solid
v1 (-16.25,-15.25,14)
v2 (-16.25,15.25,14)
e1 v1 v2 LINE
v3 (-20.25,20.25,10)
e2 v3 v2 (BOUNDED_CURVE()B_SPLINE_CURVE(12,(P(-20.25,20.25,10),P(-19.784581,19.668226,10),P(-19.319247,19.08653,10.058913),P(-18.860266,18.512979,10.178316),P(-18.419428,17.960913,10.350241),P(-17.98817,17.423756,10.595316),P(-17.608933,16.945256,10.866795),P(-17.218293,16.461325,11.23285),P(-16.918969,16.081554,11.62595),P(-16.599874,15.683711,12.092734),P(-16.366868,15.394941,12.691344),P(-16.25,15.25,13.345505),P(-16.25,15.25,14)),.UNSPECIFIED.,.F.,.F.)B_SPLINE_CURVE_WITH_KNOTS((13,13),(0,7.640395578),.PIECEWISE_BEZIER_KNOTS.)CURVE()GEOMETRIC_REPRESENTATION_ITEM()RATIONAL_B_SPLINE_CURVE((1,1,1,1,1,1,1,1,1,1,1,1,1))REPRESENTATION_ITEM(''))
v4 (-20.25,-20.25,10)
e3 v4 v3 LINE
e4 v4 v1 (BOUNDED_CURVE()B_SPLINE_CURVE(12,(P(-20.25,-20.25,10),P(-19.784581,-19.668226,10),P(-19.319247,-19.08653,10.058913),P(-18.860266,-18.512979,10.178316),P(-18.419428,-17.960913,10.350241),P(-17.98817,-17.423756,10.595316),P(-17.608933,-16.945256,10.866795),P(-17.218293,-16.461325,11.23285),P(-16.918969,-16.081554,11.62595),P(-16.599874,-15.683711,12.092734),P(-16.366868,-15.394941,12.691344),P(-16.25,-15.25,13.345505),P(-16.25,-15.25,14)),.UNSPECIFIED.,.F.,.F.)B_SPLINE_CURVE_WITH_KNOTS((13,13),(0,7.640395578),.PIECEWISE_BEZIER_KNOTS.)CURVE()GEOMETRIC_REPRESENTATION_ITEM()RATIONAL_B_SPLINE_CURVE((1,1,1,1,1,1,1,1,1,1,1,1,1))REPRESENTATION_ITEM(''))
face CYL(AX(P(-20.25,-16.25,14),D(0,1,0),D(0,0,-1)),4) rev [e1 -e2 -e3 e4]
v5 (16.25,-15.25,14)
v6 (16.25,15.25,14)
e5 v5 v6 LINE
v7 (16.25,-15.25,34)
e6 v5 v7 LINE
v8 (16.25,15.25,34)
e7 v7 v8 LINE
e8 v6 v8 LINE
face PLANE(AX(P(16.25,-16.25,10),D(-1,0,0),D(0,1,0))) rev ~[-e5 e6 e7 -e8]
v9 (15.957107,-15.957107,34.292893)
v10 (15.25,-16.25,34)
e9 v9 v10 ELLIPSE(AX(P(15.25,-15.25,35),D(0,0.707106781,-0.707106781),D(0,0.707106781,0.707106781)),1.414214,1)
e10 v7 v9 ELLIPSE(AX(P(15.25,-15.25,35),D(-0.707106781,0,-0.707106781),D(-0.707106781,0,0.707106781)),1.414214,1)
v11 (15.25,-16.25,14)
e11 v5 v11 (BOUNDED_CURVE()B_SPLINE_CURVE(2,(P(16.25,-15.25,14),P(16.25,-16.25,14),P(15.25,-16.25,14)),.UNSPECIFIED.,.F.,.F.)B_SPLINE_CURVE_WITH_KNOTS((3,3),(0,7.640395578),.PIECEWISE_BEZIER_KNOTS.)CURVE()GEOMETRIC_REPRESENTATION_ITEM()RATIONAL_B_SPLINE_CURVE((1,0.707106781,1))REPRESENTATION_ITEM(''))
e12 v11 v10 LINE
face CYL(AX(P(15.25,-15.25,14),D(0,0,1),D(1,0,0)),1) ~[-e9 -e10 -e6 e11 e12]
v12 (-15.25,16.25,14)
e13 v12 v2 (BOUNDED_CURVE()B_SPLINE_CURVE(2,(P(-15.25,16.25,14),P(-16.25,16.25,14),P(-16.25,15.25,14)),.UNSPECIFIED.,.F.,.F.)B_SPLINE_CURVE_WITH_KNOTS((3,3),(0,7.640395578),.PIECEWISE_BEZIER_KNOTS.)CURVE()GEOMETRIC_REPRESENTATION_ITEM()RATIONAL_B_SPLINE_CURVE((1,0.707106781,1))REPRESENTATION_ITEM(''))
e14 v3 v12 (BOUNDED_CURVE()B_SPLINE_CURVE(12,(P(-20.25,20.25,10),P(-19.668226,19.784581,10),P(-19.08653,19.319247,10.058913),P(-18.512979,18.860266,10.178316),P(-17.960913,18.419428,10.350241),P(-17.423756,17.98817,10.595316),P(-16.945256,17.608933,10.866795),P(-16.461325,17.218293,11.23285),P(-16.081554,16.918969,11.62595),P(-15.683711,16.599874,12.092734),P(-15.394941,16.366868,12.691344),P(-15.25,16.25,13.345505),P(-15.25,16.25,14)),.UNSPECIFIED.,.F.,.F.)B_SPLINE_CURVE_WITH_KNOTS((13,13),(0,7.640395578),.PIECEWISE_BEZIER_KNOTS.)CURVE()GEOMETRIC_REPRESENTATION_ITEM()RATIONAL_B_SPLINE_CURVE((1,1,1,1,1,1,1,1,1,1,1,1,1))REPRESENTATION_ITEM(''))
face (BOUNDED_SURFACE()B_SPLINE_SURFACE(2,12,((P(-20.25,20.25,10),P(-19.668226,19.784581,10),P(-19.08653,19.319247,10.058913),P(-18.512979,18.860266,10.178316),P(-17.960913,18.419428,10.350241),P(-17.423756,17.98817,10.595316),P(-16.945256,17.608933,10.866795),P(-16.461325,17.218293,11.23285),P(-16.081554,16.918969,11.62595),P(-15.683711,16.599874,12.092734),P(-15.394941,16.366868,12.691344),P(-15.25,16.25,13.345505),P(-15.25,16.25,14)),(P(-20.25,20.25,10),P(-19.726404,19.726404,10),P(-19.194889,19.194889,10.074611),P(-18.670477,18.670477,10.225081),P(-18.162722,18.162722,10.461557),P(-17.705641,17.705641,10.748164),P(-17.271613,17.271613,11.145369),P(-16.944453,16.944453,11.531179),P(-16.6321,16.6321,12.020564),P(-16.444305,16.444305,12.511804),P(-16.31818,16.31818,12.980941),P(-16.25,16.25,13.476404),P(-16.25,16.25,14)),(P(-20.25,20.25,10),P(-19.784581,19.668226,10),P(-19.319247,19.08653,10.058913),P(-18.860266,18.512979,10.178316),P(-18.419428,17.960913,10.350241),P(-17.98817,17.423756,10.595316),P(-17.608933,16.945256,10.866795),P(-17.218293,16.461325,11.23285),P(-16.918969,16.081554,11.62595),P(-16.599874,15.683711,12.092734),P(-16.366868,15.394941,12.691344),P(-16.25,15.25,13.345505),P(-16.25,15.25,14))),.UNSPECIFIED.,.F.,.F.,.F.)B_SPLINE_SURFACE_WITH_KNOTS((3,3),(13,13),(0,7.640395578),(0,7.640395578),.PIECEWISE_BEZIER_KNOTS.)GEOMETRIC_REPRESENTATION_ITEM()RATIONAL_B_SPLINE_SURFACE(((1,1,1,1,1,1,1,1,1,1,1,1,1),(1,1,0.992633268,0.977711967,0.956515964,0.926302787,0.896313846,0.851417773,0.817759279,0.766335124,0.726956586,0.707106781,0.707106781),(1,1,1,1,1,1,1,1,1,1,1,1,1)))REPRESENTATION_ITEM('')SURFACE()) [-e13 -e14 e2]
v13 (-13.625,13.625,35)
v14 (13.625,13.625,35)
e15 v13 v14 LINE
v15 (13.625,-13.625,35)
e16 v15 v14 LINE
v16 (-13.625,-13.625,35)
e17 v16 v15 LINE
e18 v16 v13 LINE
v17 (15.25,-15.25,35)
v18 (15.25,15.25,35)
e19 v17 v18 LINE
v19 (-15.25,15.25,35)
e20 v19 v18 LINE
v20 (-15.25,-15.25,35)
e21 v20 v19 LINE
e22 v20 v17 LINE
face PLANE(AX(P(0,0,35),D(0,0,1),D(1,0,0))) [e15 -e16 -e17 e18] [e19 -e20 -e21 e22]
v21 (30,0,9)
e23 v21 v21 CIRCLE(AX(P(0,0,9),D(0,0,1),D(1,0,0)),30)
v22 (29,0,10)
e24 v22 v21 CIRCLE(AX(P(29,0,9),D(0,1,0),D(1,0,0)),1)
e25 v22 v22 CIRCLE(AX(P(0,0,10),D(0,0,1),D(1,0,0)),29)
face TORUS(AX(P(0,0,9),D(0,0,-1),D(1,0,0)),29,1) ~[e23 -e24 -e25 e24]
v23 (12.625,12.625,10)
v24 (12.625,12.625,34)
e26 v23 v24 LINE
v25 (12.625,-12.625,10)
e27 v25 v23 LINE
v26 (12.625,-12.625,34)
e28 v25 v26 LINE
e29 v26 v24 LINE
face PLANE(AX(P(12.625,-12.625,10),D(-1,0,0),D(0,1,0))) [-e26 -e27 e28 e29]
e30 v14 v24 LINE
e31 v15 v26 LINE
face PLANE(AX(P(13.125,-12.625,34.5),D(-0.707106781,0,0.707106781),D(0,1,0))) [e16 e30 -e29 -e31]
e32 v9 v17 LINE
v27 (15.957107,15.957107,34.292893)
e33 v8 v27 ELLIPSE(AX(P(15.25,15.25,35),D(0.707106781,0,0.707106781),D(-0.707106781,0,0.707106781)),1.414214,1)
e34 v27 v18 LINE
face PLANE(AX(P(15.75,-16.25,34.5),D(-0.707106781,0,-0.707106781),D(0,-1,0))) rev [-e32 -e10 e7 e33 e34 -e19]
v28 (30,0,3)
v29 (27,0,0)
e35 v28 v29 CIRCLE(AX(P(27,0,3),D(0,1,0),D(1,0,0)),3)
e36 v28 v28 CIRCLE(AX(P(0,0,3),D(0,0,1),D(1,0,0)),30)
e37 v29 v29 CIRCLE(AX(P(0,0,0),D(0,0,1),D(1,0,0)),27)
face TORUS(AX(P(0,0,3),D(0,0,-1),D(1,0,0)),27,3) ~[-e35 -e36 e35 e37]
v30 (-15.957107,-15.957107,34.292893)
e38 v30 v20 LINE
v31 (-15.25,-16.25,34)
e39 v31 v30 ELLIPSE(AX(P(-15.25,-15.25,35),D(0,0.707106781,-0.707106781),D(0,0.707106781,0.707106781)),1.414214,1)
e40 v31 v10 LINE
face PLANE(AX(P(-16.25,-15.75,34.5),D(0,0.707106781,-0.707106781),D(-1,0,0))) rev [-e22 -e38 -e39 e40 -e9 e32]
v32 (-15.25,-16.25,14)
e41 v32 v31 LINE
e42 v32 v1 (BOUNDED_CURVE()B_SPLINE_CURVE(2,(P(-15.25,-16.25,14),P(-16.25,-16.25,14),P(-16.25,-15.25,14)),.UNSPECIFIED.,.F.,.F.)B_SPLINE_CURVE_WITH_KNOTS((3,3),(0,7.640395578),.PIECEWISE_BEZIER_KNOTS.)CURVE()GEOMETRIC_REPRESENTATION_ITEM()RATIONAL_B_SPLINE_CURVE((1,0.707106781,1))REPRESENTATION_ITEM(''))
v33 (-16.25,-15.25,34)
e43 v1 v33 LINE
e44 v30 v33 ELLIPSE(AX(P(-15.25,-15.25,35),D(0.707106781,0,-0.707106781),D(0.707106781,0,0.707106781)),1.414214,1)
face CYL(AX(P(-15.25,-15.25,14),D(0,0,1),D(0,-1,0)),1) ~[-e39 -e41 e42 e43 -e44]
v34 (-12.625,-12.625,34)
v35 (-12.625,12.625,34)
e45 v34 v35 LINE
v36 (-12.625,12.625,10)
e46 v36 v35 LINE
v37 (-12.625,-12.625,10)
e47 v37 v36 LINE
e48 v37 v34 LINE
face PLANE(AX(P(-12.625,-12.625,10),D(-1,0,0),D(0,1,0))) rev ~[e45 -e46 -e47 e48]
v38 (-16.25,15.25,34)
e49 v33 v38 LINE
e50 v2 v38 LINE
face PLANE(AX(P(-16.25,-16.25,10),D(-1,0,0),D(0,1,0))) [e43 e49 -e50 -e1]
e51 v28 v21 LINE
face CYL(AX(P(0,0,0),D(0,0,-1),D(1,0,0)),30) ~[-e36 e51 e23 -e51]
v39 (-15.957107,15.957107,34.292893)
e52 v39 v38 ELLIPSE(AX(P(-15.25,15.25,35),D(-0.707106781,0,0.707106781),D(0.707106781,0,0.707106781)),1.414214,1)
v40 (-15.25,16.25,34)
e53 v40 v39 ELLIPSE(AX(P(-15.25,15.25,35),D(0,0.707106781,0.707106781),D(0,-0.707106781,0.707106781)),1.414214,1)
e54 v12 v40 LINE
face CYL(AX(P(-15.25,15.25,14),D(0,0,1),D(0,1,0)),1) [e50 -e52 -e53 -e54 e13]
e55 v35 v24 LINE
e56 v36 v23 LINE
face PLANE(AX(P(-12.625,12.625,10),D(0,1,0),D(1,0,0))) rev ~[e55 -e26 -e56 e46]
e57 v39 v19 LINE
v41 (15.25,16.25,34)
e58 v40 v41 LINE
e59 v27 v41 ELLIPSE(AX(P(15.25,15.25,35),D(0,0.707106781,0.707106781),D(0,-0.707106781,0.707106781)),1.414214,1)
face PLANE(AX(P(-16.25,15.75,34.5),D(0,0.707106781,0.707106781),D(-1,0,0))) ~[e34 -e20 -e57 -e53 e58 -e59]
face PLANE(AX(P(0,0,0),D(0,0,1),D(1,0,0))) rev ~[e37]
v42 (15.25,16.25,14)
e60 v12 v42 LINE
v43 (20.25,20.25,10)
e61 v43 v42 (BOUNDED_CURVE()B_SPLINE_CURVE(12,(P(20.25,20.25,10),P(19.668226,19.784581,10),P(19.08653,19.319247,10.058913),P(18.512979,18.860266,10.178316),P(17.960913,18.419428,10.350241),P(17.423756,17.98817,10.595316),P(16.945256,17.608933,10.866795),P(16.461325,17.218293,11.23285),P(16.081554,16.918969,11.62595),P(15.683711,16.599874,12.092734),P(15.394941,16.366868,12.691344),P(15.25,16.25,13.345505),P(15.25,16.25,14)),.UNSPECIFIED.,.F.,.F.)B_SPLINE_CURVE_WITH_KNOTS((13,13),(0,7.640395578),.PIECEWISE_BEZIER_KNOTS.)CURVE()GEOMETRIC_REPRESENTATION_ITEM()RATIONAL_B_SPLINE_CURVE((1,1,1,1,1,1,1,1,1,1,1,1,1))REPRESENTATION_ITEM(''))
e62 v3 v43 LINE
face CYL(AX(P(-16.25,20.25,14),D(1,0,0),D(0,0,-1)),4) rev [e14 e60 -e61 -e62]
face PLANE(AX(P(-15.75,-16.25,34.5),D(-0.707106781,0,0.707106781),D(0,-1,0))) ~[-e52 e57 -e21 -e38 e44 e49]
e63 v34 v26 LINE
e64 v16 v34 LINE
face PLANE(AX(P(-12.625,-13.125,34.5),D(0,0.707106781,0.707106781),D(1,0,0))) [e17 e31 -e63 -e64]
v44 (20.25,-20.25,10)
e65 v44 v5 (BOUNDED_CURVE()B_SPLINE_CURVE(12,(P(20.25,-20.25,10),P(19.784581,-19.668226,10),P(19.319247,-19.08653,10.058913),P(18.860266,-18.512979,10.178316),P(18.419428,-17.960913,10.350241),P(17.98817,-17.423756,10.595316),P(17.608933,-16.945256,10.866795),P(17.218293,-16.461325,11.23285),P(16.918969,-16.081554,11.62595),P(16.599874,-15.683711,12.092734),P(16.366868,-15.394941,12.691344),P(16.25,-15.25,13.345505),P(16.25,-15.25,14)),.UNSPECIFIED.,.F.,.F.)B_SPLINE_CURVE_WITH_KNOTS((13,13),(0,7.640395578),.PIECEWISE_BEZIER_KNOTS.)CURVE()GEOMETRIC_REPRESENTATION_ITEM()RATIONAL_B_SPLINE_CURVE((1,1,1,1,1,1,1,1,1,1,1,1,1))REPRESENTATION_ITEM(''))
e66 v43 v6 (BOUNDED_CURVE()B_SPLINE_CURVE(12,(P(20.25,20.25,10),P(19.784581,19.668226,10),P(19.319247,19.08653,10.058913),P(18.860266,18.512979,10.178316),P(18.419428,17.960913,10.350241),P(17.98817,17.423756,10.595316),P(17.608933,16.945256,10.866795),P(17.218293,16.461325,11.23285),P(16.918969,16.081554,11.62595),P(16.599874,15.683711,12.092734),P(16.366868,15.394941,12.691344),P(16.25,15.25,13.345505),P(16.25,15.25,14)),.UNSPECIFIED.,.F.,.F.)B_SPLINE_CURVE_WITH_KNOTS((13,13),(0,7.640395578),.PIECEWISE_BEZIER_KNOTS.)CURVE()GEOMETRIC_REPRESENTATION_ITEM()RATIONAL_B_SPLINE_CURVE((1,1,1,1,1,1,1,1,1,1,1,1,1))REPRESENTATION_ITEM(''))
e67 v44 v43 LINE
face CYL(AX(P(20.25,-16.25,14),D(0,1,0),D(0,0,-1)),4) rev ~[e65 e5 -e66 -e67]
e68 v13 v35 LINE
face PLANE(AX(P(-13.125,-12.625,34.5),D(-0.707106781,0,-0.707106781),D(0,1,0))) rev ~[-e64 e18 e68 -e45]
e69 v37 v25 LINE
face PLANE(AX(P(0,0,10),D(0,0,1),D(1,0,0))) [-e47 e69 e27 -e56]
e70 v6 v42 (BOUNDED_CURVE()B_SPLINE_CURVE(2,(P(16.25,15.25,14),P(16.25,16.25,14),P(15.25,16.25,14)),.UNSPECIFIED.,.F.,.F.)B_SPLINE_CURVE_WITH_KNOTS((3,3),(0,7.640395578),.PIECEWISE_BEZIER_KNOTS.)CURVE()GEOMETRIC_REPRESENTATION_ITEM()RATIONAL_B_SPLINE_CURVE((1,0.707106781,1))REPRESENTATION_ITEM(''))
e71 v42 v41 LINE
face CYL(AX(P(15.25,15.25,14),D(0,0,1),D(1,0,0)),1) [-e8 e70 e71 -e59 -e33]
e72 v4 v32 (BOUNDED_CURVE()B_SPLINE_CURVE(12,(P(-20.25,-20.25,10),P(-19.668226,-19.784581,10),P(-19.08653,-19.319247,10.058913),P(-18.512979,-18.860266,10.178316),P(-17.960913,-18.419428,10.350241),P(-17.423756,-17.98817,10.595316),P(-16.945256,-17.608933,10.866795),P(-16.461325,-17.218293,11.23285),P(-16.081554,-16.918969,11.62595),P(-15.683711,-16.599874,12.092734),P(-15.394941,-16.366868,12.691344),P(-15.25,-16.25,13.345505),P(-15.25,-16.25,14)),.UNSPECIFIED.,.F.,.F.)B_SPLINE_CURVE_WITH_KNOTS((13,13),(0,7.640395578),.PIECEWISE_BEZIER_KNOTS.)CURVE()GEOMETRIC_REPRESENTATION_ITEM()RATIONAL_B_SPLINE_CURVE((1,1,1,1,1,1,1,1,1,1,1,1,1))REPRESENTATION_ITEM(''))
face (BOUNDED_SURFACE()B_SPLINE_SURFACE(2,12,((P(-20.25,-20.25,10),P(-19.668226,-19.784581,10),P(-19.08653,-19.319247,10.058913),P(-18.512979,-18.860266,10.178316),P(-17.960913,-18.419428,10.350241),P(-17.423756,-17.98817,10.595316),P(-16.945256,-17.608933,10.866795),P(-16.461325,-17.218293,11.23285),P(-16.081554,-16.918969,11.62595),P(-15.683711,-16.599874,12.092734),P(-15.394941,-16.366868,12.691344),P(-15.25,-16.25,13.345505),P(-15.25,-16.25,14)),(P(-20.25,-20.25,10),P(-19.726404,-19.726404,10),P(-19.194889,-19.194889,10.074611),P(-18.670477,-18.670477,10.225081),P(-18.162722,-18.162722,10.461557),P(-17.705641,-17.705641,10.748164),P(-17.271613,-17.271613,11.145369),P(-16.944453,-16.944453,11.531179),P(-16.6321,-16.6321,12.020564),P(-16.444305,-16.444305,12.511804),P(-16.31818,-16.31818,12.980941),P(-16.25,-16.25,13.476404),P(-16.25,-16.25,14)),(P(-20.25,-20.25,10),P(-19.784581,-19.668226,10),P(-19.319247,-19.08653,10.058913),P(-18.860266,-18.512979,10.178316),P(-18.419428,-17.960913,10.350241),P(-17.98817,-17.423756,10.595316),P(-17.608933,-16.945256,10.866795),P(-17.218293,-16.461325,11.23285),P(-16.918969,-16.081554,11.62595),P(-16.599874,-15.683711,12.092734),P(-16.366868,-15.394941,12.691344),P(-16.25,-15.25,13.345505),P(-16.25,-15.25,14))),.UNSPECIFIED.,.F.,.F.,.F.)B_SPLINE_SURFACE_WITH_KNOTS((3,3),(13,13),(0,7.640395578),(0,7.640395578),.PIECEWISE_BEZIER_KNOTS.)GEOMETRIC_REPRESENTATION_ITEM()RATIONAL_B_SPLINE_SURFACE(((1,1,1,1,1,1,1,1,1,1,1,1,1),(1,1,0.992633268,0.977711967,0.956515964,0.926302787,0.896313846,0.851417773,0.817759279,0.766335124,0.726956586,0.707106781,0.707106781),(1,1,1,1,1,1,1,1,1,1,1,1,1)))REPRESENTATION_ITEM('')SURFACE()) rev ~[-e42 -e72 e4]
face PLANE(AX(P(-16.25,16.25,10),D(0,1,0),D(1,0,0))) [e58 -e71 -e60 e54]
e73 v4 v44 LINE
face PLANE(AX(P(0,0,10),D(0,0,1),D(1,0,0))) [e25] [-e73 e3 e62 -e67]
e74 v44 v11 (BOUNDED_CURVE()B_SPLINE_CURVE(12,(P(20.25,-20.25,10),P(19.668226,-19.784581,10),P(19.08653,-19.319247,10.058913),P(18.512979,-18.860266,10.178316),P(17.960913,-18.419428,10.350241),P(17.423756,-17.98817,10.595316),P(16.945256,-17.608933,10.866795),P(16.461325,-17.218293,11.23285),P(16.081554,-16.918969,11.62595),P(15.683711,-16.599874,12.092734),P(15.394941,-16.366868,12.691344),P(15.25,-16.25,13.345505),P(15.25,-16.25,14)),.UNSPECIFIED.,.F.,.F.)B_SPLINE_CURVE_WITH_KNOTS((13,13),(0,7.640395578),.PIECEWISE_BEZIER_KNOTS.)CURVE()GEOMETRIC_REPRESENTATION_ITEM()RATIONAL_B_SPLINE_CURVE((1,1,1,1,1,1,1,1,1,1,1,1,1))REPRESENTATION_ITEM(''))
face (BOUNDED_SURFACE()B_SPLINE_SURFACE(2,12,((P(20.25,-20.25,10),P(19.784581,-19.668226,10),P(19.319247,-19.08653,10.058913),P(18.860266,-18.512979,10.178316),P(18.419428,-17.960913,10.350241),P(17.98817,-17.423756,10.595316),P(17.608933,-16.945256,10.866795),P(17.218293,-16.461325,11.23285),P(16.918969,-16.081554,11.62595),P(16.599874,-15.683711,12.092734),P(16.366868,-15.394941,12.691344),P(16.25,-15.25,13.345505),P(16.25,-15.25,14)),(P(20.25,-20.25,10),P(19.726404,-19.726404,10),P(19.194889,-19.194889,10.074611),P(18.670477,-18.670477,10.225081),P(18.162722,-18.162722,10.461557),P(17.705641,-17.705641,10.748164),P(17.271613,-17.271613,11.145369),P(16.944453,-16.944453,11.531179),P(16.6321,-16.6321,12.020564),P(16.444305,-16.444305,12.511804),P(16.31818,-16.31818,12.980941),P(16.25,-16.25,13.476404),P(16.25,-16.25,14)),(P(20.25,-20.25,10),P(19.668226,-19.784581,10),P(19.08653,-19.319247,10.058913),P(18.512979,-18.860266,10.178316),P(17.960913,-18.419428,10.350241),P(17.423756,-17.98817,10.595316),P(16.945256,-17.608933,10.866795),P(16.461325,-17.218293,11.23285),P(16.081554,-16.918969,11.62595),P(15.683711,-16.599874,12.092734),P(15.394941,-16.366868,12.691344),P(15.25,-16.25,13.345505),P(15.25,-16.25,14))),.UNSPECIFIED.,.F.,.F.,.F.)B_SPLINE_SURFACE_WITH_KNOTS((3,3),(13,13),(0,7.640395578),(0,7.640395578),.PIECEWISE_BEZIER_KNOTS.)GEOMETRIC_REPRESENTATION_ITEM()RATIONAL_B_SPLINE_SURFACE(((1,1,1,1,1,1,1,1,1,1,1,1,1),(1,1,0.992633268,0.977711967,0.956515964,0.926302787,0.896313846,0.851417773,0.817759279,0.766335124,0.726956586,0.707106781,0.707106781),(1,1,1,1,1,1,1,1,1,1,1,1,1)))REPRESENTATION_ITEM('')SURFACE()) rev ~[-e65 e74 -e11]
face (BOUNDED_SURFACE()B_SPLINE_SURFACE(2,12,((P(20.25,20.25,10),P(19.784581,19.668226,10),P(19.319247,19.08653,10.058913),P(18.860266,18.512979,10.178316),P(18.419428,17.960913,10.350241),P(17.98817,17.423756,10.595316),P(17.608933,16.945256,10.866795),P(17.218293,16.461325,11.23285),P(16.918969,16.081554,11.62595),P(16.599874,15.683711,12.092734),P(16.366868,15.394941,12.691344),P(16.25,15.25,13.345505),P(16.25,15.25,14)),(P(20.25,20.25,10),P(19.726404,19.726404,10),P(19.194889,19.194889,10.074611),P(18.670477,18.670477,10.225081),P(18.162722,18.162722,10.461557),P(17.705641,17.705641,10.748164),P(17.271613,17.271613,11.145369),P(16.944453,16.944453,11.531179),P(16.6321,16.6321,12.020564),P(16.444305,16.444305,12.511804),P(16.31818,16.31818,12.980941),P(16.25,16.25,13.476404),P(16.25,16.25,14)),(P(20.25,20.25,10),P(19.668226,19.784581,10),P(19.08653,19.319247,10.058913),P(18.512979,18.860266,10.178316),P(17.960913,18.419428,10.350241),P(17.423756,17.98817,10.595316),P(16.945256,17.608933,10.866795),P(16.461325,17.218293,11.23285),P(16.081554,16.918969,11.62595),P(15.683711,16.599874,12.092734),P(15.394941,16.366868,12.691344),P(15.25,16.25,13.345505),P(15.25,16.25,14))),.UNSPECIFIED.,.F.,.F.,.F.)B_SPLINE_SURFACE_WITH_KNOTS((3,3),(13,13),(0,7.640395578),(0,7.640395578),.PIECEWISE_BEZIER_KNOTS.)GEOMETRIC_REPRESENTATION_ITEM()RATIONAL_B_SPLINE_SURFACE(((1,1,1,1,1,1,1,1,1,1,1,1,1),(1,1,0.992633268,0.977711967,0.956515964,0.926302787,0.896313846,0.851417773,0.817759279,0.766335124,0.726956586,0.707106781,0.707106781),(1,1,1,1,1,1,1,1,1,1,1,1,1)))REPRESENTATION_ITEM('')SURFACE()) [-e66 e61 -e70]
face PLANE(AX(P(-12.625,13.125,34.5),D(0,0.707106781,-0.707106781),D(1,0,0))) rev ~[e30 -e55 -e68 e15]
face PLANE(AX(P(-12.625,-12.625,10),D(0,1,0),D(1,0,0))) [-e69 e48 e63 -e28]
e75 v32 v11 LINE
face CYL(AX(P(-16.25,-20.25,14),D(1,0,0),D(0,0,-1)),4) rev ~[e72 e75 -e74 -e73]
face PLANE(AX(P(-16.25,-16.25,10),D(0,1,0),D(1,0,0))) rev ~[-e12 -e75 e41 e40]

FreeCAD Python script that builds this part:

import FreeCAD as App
import Part
import Sketcher

V = App.Vector
Q = App.Units.Quantity


def edges_at(feature, points):
    """Names of the edges that pass closest to the given points."""
    edges = feature.Shape.Edges
    near = lambda p: min(range(len(edges)), key=lambda i: edges[i].distToShape(Part.Vertex(*p))[0])
    return sorted({f"Edge{near(p) + 1}" for p in points})


def add_polygon(sketch, points):
    """Adds a closed chain of lines whose ends are joined by coincident constraints."""
    first, n = sketch.GeometryCount, len(points)
    for a, b in zip(points, points[1:] + points[:1]):
        sketch.addGeometry(Part.LineSegment(App.Vector(*a, 0), App.Vector(*b, 0)), False)
    for i in range(n):
        sketch.addConstraint(Sketcher.Constraint("Coincident", first + i, 2, first + (i + 1) % n, 1))

doc = App.newDocument("Part")
body = doc.addObject("PartDesign::Body", "Body")

# Sketch on XY plane
sketch1 = doc.addObject("Sketcher::SketchObject", "Sketch")
body.addObject(sketch1)
sketch1.AttachmentSupport = (doc.XY_Plane, [""])
sketch1.MapMode = "FlatFace"
sketch1.addGeometry(Part.Circle(V(0, 0, 0), V(0, 0, 1), 30), False)
sketch1.addConstraint([
    Sketcher.Constraint("Coincident", 0, 3, -1, 1),
    Sketcher.Constraint("Diameter", 0, Q("60 mm")),
])
pad1 = doc.addObject("PartDesign::Pad", "Pad")
body.addObject(pad1)
pad1.Profile = sketch1
pad1.Length = 10

# Sketch on XY plane
sketch2 = doc.addObject("Sketcher::SketchObject", "Sketch001")
body.addObject(sketch2)
sketch2.AttachmentSupport = (doc.XY_Plane, [""])
sketch2.MapMode = "FlatFace"
sketch2.AttachmentOffset = App.Placement(V(0, 0, 10), App.Rotation())
add_polygon(sketch2, [(-16.25, 16.25), (-16.25, -16.25), (16.25, -16.25), (16.25, 16.25)])  # lines 0-3
add_polygon(sketch2, [(12.625, -12.625), (-12.625, -12.625), (-12.625, 12.625), (12.625, 12.625)])  # lines 4-7
sketch2.addConstraint([
    Sketcher.Constraint("Vertical", 0),
    Sketcher.Constraint("Horizontal", 1),
    Sketcher.Constraint("Vertical", 2),
    Sketcher.Constraint("Horizontal", 3),
    Sketcher.Constraint("Horizontal", 4),
    Sketcher.Constraint("Vertical", 5),
    Sketcher.Constraint("Horizontal", 6),
    Sketcher.Constraint("Vertical", 7),
    Sketcher.Constraint("Symmetric", 0, 2, 2, 2, -1, 1),
    Sketcher.Constraint("Symmetric", 4, 2, 6, 2, -1, 1),
    Sketcher.Constraint("Equal", 3, 0),
    Sketcher.Constraint("Equal", 6, 5),
    Sketcher.Constraint("DistanceX", 1, 1, 1, 2, Q("32.5 mm")),
    Sketcher.Constraint("DistanceX", 4, 2, 4, 1, Q("25.25 mm")),
])
pad2 = doc.addObject("PartDesign::Pad", "Pad001")
body.addObject(pad2)
pad2.Profile = sketch2
pad2.Length = 25
doc.recompute()

fillet = doc.addObject("PartDesign::Fillet", "Fillet")
body.addObject(fillet)
fillet.Base = (pad2, edges_at(pad2, [
    (16.25, 0, 10),
    (0, -16.25, 10),
    (-16.25, 0, 10),
    (0, 16.25, 10),
]))
fillet.Radius = 4
doc.recompute()

fillet2 = doc.addObject("PartDesign::Fillet", "Fillet001")
body.addObject(fillet2)
fillet2.Base = (fillet, edges_at(fillet, [(-30, 0, 10)]))
fillet2.Radius = 1
doc.recompute()

fillet3 = doc.addObject("PartDesign::Fillet", "Fillet002")
body.addObject(fillet3)
fillet3.Base = (fillet2, edges_at(fillet2, [(-30, 0, 0)]))
fillet3.Radius = 3
doc.recompute()

chamfer = doc.addObject("PartDesign::Chamfer", "Chamfer")
body.addObject(chamfer)
chamfer.Base = (fillet3, edges_at(fillet3, [
    (-16.25, 0, 35),
    (0, -16.25, 35),
    (16.25, 0, 35),
    (0, 16.25, 35),
    (-12.625, 0, 35),
    (0, -12.625, 35),
    (12.625, 0, 35),
    (0, 12.625, 35),
]))
chamfer.Size = 1
doc.recompute()

fillet4 = doc.addObject("PartDesign::Fillet", "Fillet003")
body.addObject(fillet4)
fillet4.Base = (chamfer, edges_at(chamfer, [(16.25, -16.25, 24), (-16.25, -16.25, 24), (-16.25, 16.25, 24)]))
fillet4.Radius = 1
doc.recompute()

fillet5 = doc.addObject("PartDesign::Fillet", "Fillet004")
body.addObject(fillet5)
fillet5.Base = (fillet4, edges_at(fillet4, [(16.25, 16.25, 24)]))
fillet5.Radius = 1

doc.recompute()
